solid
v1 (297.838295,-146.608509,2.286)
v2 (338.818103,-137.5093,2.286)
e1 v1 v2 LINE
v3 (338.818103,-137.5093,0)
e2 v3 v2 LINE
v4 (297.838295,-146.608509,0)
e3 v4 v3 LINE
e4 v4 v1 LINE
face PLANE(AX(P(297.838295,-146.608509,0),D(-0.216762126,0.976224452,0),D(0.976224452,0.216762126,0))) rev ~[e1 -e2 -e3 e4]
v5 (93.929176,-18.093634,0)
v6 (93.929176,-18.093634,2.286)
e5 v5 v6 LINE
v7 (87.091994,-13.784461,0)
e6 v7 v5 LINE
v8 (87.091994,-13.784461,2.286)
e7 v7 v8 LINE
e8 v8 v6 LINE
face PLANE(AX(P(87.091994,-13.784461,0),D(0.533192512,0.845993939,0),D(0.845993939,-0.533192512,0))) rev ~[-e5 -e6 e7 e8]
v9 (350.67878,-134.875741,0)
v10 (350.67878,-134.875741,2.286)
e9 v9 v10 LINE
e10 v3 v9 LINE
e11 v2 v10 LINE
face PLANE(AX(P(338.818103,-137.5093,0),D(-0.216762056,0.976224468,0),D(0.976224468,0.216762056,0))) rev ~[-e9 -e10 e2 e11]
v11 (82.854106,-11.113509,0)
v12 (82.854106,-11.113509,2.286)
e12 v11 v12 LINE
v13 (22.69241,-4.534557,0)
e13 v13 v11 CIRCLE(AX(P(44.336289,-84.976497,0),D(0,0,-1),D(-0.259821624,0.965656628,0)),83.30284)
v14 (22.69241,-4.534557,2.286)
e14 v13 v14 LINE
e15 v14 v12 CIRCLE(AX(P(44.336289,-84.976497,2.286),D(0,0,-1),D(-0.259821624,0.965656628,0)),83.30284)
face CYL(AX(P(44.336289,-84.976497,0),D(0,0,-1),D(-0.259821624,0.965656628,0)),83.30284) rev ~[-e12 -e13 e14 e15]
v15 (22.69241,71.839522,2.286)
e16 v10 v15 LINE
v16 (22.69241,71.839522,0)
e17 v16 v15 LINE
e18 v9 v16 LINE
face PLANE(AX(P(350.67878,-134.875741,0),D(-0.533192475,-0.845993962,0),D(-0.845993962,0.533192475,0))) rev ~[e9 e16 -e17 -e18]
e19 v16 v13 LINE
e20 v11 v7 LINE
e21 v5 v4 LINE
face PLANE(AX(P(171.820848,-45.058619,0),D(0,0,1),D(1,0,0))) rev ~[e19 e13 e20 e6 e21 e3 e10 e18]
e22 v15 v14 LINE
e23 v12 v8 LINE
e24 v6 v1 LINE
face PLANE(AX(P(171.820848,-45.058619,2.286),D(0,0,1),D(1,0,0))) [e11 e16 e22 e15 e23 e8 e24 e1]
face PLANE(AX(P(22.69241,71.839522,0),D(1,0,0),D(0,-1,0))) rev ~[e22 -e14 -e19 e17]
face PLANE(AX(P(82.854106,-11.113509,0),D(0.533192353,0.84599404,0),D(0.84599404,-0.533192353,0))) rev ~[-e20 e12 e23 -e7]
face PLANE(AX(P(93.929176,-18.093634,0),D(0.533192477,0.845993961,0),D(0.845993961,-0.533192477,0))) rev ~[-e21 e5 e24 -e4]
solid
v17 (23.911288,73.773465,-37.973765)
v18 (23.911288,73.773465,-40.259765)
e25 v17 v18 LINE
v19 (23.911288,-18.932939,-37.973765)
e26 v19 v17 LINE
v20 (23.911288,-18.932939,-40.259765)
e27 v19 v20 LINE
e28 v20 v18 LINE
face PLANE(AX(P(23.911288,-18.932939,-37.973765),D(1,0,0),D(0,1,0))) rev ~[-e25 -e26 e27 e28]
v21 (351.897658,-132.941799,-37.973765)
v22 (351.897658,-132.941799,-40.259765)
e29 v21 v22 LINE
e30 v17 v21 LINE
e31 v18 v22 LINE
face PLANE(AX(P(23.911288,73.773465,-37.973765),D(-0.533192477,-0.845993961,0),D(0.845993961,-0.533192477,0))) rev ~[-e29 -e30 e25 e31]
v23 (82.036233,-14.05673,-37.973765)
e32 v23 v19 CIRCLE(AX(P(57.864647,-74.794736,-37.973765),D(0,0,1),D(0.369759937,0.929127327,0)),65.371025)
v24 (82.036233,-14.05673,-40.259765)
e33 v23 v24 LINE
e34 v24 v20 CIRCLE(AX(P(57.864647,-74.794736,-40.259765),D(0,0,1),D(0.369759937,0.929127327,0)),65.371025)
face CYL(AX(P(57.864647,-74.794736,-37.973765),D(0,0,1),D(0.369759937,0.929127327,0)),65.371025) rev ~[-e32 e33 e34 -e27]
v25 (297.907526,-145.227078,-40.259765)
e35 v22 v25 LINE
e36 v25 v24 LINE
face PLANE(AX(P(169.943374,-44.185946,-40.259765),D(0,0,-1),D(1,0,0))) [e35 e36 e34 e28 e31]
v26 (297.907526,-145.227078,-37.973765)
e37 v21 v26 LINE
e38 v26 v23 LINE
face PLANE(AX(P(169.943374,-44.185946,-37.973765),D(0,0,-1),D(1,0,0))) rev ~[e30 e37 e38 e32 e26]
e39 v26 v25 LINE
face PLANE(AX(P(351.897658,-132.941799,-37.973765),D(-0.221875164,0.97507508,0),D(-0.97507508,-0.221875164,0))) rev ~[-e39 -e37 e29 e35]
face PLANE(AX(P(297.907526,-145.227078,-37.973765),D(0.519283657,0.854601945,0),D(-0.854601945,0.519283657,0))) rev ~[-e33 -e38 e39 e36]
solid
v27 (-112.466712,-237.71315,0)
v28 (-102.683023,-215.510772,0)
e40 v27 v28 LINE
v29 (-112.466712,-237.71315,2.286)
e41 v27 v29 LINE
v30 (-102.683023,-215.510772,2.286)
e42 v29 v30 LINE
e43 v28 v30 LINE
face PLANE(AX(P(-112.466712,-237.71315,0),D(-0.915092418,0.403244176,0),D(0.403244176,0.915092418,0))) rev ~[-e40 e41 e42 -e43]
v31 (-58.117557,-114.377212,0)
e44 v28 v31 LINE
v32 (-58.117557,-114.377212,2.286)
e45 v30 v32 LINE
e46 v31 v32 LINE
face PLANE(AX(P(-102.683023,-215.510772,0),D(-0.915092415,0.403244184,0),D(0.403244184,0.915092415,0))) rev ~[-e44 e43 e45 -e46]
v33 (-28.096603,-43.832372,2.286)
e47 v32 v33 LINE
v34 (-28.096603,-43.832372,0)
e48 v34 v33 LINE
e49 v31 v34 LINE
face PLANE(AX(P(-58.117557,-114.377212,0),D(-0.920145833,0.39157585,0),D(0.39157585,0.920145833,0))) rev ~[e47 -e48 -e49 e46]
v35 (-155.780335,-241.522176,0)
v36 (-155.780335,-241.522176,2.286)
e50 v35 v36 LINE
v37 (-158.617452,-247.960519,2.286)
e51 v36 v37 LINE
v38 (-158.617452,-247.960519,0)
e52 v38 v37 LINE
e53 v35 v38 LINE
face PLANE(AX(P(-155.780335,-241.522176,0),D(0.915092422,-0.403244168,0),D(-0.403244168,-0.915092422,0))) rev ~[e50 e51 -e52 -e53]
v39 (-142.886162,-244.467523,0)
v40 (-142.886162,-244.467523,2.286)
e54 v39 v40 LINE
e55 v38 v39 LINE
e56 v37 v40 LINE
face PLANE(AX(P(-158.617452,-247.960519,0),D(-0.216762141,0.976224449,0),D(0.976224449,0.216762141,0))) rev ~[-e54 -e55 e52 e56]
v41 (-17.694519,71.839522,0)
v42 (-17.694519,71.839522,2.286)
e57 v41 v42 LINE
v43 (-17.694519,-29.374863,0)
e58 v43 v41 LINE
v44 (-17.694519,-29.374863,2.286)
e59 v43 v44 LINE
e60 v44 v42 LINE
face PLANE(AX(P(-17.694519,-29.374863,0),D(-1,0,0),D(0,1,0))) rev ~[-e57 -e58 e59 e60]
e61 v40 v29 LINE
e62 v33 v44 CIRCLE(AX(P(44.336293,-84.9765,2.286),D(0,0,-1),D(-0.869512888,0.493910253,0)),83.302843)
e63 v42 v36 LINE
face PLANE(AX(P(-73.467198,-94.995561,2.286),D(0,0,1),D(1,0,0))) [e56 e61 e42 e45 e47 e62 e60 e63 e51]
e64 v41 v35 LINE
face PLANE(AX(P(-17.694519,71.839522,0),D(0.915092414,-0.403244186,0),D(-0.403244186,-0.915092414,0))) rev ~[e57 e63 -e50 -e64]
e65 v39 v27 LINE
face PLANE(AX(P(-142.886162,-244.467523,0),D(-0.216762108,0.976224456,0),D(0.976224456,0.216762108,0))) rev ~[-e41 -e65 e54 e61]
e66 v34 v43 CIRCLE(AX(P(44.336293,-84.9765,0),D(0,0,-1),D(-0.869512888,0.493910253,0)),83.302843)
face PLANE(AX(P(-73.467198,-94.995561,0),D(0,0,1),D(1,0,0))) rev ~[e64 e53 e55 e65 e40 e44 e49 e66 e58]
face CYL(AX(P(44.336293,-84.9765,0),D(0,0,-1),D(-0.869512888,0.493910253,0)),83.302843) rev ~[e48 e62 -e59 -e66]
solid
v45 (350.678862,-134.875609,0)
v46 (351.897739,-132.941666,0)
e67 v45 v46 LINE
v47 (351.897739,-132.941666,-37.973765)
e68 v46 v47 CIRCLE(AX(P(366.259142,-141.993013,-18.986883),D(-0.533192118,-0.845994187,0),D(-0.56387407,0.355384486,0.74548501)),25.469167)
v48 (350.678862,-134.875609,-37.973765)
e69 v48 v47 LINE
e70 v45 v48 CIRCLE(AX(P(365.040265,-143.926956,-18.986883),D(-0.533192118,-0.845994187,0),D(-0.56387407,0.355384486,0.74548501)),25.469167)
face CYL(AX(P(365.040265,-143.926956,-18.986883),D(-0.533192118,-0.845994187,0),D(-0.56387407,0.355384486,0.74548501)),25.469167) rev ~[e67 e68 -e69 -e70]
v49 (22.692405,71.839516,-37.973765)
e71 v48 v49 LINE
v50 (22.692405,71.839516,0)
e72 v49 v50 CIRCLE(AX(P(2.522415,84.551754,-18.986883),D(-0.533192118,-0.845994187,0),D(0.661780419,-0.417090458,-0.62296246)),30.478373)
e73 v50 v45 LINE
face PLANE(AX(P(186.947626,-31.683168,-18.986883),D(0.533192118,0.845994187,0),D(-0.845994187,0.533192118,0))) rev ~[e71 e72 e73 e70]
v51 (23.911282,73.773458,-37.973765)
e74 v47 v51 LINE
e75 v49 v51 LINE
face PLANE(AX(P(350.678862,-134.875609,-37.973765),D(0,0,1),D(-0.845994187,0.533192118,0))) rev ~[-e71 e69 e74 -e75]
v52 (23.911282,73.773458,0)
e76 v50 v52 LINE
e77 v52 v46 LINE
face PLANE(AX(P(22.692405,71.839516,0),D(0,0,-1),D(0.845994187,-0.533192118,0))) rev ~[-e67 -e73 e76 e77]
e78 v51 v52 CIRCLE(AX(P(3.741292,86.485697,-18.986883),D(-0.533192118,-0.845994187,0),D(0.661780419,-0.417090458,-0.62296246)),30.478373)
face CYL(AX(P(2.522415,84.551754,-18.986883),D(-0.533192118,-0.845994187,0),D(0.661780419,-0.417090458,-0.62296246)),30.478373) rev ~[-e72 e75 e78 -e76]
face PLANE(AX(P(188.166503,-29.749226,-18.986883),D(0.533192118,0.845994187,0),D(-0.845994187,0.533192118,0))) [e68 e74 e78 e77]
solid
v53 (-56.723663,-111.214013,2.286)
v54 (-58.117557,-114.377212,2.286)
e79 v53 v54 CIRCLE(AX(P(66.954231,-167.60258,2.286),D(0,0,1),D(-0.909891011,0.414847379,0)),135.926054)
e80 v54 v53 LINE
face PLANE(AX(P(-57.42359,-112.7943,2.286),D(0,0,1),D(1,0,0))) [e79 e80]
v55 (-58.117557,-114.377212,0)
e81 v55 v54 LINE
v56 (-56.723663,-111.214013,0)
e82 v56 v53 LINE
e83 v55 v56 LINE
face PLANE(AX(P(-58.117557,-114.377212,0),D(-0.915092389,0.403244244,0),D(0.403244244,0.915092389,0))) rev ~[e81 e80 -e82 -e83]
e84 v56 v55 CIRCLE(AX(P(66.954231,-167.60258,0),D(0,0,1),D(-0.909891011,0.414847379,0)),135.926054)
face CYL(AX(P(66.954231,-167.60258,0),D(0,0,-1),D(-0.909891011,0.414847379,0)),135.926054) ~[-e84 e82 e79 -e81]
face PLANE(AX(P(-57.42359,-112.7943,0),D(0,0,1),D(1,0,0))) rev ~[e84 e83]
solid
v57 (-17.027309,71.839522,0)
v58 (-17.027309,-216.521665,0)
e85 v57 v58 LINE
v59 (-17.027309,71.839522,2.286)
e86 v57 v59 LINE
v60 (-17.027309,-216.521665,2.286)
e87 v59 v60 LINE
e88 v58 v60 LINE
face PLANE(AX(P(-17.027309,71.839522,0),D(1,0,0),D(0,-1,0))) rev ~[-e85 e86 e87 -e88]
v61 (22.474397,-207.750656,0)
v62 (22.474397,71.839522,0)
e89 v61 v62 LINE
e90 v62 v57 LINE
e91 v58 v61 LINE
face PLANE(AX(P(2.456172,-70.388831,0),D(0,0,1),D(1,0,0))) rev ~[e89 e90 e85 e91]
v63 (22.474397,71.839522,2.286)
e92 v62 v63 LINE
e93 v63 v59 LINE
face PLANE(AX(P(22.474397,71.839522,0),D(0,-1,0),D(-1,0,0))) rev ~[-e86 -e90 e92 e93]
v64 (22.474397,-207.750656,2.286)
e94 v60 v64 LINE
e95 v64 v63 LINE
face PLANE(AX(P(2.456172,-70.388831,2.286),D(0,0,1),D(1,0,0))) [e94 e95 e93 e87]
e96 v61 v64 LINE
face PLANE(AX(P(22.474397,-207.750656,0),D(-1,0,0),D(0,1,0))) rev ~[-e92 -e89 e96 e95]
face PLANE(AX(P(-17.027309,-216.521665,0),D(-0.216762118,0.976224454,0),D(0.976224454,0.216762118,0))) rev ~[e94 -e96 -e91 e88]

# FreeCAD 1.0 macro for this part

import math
import FreeCAD as App
import Part
import Sketcher

V = App.Vector
Q = App.Units.Quantity


def add_polygon(sketch, points):
    """Adds a closed chain of lines whose ends are joined by coincident constraints."""
    first, n = sketch.GeometryCount, len(points)
    for a, b in zip(points, points[1:] + points[:1]):
        sketch.addGeometry(Part.LineSegment(App.Vector(*a, 0), App.Vector(*b, 0)), False)
    for i in range(n):
        sketch.addConstraint(Sketcher.Constraint("Coincident", first + i, 2, first + (i + 1) % n, 1))

doc = App.newDocument("Part")
body = doc.addObject("PartDesign::Body", "Body")
body.AllowCompound = True

# Sketch on XY plane
sketch1 = body.newObject("Sketcher::SketchObject", "Sketch")
sketch1.AttachmentSupport = (doc.getObject("XY_Plane"), [""])
sketch1.MapMode = "FlatFace"
sketch1.addGeometry(Part.ArcOfCircle(Part.Circle(V(66.954231, -167.60258, 0), V(0, 0, 1), 135.926054), math.radians(155.490294), math.radians(156.947407)), False)  # 0
sketch1.addGeometry(Part.LineSegment(V(-58.117557, -114.377212, 0), V(-56.723663, -111.214013, 0)), False)  # 1
add_polygon(sketch1, [(22.474397, 71.839522), (-17.027309, 71.839522), (-17.027309, -216.521665), (22.474397, -207.750656)])  # lines 2-5
sketch1.addGeometry(Part.LineSegment(V(-17.694519, 71.839522, 0), V(-155.780335, -241.522176, 0)), False)  # 6
sketch1.addGeometry(Part.LineSegment(V(-155.780335, -241.522176, 0), V(-158.617452, -247.960519, 0)), False)  # 7
sketch1.addGeometry(Part.LineSegment(V(-158.617452, -247.960519, 0), V(-142.886162, -244.467523, 0)), False)  # 8
sketch1.addGeometry(Part.LineSegment(V(-142.886162, -244.467523, 0), V(-112.466712, -237.71315, 0)), False)  # 9
sketch1.addGeometry(Part.LineSegment(V(-112.466712, -237.71315, 0), V(-102.683023, -215.510772, 0)), False)  # 10
sketch1.addGeometry(Part.LineSegment(V(-102.683023, -215.510772, 0), V(-58.117557, -114.377212, 0)), False)  # 11
sketch1.addGeometry(Part.LineSegment(V(-58.117557, -114.377212, 0), V(-28.096603, -43.832372, 0)), False)  # 12
sketch1.addGeometry(Part.ArcOfCircle(Part.Circle(V(44.336293, -84.9765, 0), V(0, 0, 1), 83.302843), math.radians(138.128375), math.radians(150.402083)), False)  # 13
sketch1.addGeometry(Part.LineSegment(V(-17.694519, -29.374863, 0), V(-17.694519, 71.839522, 0)), False)  # 14
sketch1.addGeometry(Part.LineSegment(V(350.67878, -134.875741, 0), V(22.69241, 71.839522, 0)), False)  # 15
sketch1.addGeometry(Part.LineSegment(V(22.69241, 71.839522, 0), V(22.69241, -4.534557, 0)), False)  # 16
sketch1.addGeometry(Part.ArcOfCircle(Part.Circle(V(44.336289, -84.976497, 0), V(0, 0, 1), 83.30284), math.radians(62.459015), math.radians(105.059478)), False)  # 17
sketch1.addGeometry(Part.LineSegment(V(82.854106, -11.113509, 0), V(87.091994, -13.784461, 0)), False)  # 18
sketch1.addGeometry(Part.LineSegment(V(87.091994, -13.784461, 0), V(93.929176, -18.093634, 0)), False)  # 19
sketch1.addGeometry(Part.LineSegment(V(93.929176, -18.093634, 0), V(297.838295, -146.608509, 0)), False)  # 20
sketch1.addGeometry(Part.LineSegment(V(297.838295, -146.608509, 0), V(338.818103, -137.5093, 0)), False)  # 21
sketch1.addGeometry(Part.LineSegment(V(338.818103, -137.5093, 0), V(350.67878, -134.875741, 0)), False)  # 22
sketch1.addConstraint([
    Sketcher.Constraint("Coincident", 0, 1, 1, 2),
    Sketcher.Constraint("Coincident", 1, 1, 0, 2),
    Sketcher.Constraint("Coincident", 6, 2, 7, 1),
    Sketcher.Constraint("Coincident", 7, 2, 8, 1),
    Sketcher.Constraint("Coincident", 8, 2, 9, 1),
    Sketcher.Constraint("Coincident", 9, 2, 10, 1),
    Sketcher.Constraint("Coincident", 10, 2, 11, 1),
    Sketcher.Constraint("Coincident", 11, 2, 12, 1),
    Sketcher.Constraint("Coincident", 12, 2, 13, 2),
    Sketcher.Constraint("Coincident", 13, 1, 14, 1),
    Sketcher.Constraint("Coincident", 14, 2, 6, 1),
    Sketcher.Constraint("Coincident", 15, 2, 16, 1),
    Sketcher.Constraint("Coincident", 16, 2, 17, 2),
    Sketcher.Constraint("Coincident", 17, 1, 18, 1),
    Sketcher.Constraint("Coincident", 18, 2, 19, 1),
    Sketcher.Constraint("Coincident", 19, 2, 20, 1),
    Sketcher.Constraint("Coincident", 20, 2, 21, 1),
    Sketcher.Constraint("Coincident", 21, 2, 22, 1),
    Sketcher.Constraint("Coincident", 22, 2, 15, 1),
    Sketcher.Constraint("Horizontal", 2),
    Sketcher.Constraint("Vertical", 3),
    Sketcher.Constraint("Vertical", 5),
    Sketcher.Constraint("Vertical", 14),
    Sketcher.Constraint("Vertical", 16),
    Sketcher.Constraint("Coincident", 17, 3, 13, 3),
    Sketcher.Constraint("Coincident", 11, 2, 1, 1),
    Sketcher.Constraint("Radius", 17, 83.30284),
    Sketcher.Constraint("Radius", 0, 135.926054),
    Sketcher.Constraint("Radius", 13, 83.302843),
    Sketcher.Constraint("Distance", 1, 3.456699),
    Sketcher.Constraint("DistanceY", 5, 1, 5, 2, 279.590178),
    Sketcher.Constraint("DistanceY", 16, 2, 16, 1, 76.374079),
    Sketcher.Constraint("DistanceY", 13, 3, -1, 1, 84.9765),
    Sketcher.Constraint("DistanceY", 21, 2, -1, 1, 137.5093),
    Sketcher.Constraint("DistanceX", 2, 2, 17, 3, 61.363598),
    Sketcher.Constraint("DistanceX", 8, 2, 0, 1, 86.162499),
    Sketcher.Constraint("DistanceX", 13, 3, 18, 2, 42.755701),
    Sketcher.Constraint("DistanceX", 18, 2, 20, 2, 210.746301),
    Sketcher.Constraint("DistanceY", 20, 2, 17, 1, 135.495),
    Sketcher.Constraint("Distance", 7, 7.03573),
    Sketcher.Constraint("Distance", 8, 16.114419),
    Sketcher.Constraint("Distance", 11, 110.517319),
    Sketcher.Constraint("Distance", 12, 76.667021),
    Sketcher.Constraint("Distance", 15, 387.693512),
    Sketcher.Constraint("Distance", 18, 5.009359),
    Sketcher.Constraint("Distance", 22, 12.149539),
    Sketcher.Constraint("DistanceX", 2, 2, 2, 1, 39.501706),
    Sketcher.Constraint("DistanceY", 3, 2, 3, 1, 288.361187),
    Sketcher.Constraint("DistanceY", 14, 1, 14, 2, 101.214385),
    Sketcher.Constraint("DistanceX", -1, 1, 0, 3, 66.954231),
    Sketcher.Constraint("DistanceY", 0, 3, -1, 1, 167.60258),
    Sketcher.Constraint("DistanceX", -1, 1, 17, 3, 44.336289),
    Sketcher.Constraint("DistanceY", 1, 1, -1, 1, 114.377212),
    Sketcher.Constraint("DistanceX", 7, 2, -1, 1, 158.617452),
    Sketcher.Constraint("DistanceY", 7, 2, -1, 1, 247.960519),
    Sketcher.Constraint("DistanceX", 9, 2, -1, 1, 112.466712),
    Sketcher.Constraint("DistanceY", 9, 2, -1, 1, 237.71315),
    Sketcher.Constraint("DistanceY", 10, 2, -1, 1, 215.510772),
    Sketcher.Constraint("DistanceX", 13, 1, -1, 1, 17.694519),
    Sketcher.Constraint("DistanceX", -1, 1, 15, 2, 22.69241),
    Sketcher.Constraint("DistanceY", 17, 1, -1, 1, 11.113509),
    Sketcher.Constraint("DistanceX", -1, 1, 22, 2, 350.67878),
    Sketcher.Constraint("DistanceY", 17, 3, 2, 2, 156.816019),
    Sketcher.Constraint("DistanceY", 6, 2, 3, 2, 25.000511),
    Sketcher.Constraint("DistanceX", 18, 2, 19, 2, 6.837182),
    Sketcher.Constraint("Distance", 19, 8.081833),
])
pad1 = body.newObject("PartDesign::Pad", "Pad")
pad1.Profile = sketch1
pad1.Length = Q("0.09 in")
body2 = doc.addObject("PartDesign::Body", "Body001")

# Sketch on an angled plane
sketch2 = body2.newObject("Sketcher::SketchObject", "Sketch001")
sketch2.Placement = App.Placement(V(38.856521, 61.652, 0), App.Rotation(V(-0.845994187, 0.533192118, 0), V(0, 0, 0.999999999), V(0.533192118, 0.845994187, 0), "ZXY"))
sketch2.addGeometry([
    Part.ArcOfCircle(Part.Circle(V(43, -19, 0), V(0, 0, 1), 30), math.radians(141), math.radians(219)),
    Part.LineSegment(V(19, 0, 0), V(-369, 0, 0)),
    Part.ArcOfCircle(Part.Circle(V(-386, -19, 0), V(0, 0, 1), 25), math.radians(-48), math.radians(48)),
    Part.LineSegment(V(-369, -38, 0), V(19, -38, 0)),
], False)
sketch2.addConstraint([
    Sketcher.Constraint("Coincident", 0, 1, 1, 1),
    Sketcher.Constraint("Coincident", 1, 2, 2, 2),
    Sketcher.Constraint("Coincident", 2, 1, 3, 1),
    Sketcher.Constraint("Coincident", 3, 2, 0, 2),
    Sketcher.Constraint("Horizontal", 1),
    Sketcher.Constraint("Horizontal", 3),
    Sketcher.Constraint("PointOnObject", 0, 1, -1),
    Sketcher.Constraint("Horizontal", 0, 3, 2, 3),
    Sketcher.Constraint("Vertical", 1, 2, 2, 1),
    Sketcher.Constraint("Radius", 0, 30.478373),
    Sketcher.Constraint("Radius", 2, 25.469167),
    Sketcher.Constraint("DistanceX", 1, 2, 1, 1, 387.693511),
    Sketcher.Constraint("DistanceX", -1, 1, 0, 3, 42.948411),
    Sketcher.Constraint("DistanceX", 2, 3, -1, 1, 385.56263),
])
pad2 = body2.newObject("PartDesign::Pad", "Pad001")
pad2.Profile = sketch2
pad2.Length = Q("0.09 in")
body3 = doc.addObject("PartDesign::Body", "Body002")

# Sketch on XY plane
sketch3 = body3.newObject("Sketcher::SketchObject", "Sketch002")
sketch3.AttachmentSupport = (doc.getObject("XY_Plane002"), [""])
sketch3.MapMode = "FlatFace"
sketch3.AttachmentOffset = App.Placement(V(0, 0, -37.973765), App.Rotation())
sketch3.addGeometry([
    Part.LineSegment(V(24, -19, 0), V(24, 74, 0)),  # 0
    Part.LineSegment(V(24, 74, 0), V(352, -133, 0)),  # 1
    Part.LineSegment(V(352, -133, 0), V(298, -145, 0)),  # 2
    Part.LineSegment(V(298, -145, 0), V(82, -14, 0)),  # 3
    Part.ArcOfCircle(Part.Circle(V(58, -75, 0), V(0, 0, 1), 65), math.radians(68), math.radians(121)),  # 4
], False)
sketch3.addConstraint([
    Sketcher.Constraint("Coincident", 0, 2, 1, 1),
    Sketcher.Constraint("Coincident", 1, 2, 2, 1),
    Sketcher.Constraint("Coincident", 2, 2, 3, 1),
    Sketcher.Constraint("Coincident", 3, 2, 4, 1),
    Sketcher.Constraint("Coincident", 4, 2, 0, 1),
    Sketcher.Constraint("Vertical", 0),
    Sketcher.Constraint("Radius", 4, 65.371025),
    Sketcher.Constraint("DistanceY", 1, 2, -1, 1, 132.941799),
    Sketcher.Constraint("DistanceY", 4, 3, 0, 2, 148.568201),
    Sketcher.Constraint("Distance", 2, 55.370231),
    Sketcher.Constraint("DistanceY", 0, 1, 0, 2, 92.706404),
    Sketcher.Constraint("DistanceX", -1, 1, 1, 2, 351.897658),
    Sketcher.Constraint("DistanceY", 2, 2, -1, 1, 145.227078),
    Sketcher.Constraint("DistanceY", 3, 2, -1, 1, 14.05673),
    Sketcher.Constraint("DistanceX", -1, 1, 4, 2, 23.911288),
    Sketcher.Constraint("DistanceY", 4, 2, -1, 1, 18.932939),
])
pad3 = body3.newObject("PartDesign::Pad", "Pad002")
pad3.Profile = sketch3
pad3.Length = Q("0.09 in")
pad3.Reversed = True

doc.recompute()
